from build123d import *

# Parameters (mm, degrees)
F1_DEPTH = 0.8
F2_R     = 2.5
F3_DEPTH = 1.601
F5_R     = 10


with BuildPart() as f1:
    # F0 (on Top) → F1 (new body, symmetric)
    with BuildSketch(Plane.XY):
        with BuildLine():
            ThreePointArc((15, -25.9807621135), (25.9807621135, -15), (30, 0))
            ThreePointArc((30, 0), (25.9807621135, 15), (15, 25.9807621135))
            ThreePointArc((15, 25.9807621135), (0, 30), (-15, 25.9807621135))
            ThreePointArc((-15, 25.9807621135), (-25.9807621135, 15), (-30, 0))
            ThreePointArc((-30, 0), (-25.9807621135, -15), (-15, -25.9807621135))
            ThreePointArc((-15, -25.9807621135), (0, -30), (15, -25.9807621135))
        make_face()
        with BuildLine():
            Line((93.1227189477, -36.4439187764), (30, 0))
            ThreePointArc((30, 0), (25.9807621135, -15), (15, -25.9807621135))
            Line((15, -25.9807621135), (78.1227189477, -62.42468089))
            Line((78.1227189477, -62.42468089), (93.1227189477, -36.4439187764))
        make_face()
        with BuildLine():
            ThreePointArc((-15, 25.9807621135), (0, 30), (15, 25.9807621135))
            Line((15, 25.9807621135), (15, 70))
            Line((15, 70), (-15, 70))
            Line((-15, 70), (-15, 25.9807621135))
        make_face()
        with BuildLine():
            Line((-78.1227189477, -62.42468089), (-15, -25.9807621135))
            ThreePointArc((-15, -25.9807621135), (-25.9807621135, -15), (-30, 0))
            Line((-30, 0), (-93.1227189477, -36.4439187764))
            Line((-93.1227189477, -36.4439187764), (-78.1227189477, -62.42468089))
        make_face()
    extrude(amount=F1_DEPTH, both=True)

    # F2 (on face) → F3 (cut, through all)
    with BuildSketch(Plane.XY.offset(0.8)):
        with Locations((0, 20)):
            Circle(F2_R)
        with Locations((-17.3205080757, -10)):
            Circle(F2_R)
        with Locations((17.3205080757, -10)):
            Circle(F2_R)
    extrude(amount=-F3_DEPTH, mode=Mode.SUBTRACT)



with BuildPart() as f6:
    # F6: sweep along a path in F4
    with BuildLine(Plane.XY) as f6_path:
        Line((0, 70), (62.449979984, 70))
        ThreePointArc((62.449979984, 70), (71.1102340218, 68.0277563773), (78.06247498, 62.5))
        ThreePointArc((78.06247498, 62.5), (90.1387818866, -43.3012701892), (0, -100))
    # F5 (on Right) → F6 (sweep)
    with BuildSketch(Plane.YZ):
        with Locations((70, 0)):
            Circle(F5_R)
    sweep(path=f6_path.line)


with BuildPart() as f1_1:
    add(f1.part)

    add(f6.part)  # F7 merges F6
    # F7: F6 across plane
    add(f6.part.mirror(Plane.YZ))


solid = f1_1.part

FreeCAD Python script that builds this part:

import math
import FreeCAD as App
import Part
import Sketcher
from FreeCAD import Vector
Q = App.Units.Quantity

doc = App.newDocument("Part")
body = doc.addObject("PartDesign::Body", "Body")

sketch1 = body.newObject("Sketcher::SketchObject", "Sketch")
sketch1.AttachmentSupport = (doc.getObject("XY_Plane"), [""])
sketch1.MapMode = "FlatFace"
sketch1.addGeometry(Part.ArcOfCircle(Part.Circle(Vector(0, 0, 0), Vector(0, 0, 1), 30), math.radians(0), math.radians(60)), False)
sketch1.addGeometry(Part.LineSegment(Vector(15, 26, 0), Vector(15, 70, 0)), False)
sketch1.addGeometry(Part.LineSegment(Vector(15, 70, 0), Vector(-15, 70, 0)), False)
sketch1.addGeometry(Part.LineSegment(Vector(-15, 70, 0), Vector(-15, 26, 0)), False)
sketch1.addGeometry(Part.ArcOfCircle(Part.Circle(Vector(0, 0, 0), Vector(0, 0, 1), 30), math.radians(120), math.radians(180)), False)
sketch1.addGeometry(Part.LineSegment(Vector(-30, 0, 0), Vector(-93, -36, 0)), False)
sketch1.addGeometry(Part.LineSegment(Vector(-93, -36, 0), Vector(-78, -62, 0)), False)
sketch1.addGeometry(Part.LineSegment(Vector(-78, -62, 0), Vector(-15, -26, 0)), False)
sketch1.addGeometry(Part.ArcOfCircle(Part.Circle(Vector(0, 0, 0), Vector(0, 0, 1), 30), math.radians(-120), math.radians(-60)), False)
sketch1.addGeometry(Part.LineSegment(Vector(15, -26, 0), Vector(78, -62, 0)), False)
sketch1.addGeometry(Part.LineSegment(Vector(78, -62, 0), Vector(93, -36, 0)), False)
sketch1.addGeometry(Part.LineSegment(Vector(93, -36, 0), Vector(30, 0, 0)), False)
sketch1.addConstraint(Sketcher.Constraint("Coincident", 0, 2, 1, 1))
sketch1.addConstraint(Sketcher.Constraint("Coincident", 1, 2, 2, 1))
sketch1.addConstraint(Sketcher.Constraint("Coincident", 2, 2, 3, 1))
sketch1.addConstraint(Sketcher.Constraint("Coincident", 3, 2, 4, 1))
sketch1.addConstraint(Sketcher.Constraint("Coincident", 4, 2, 5, 1))
sketch1.addConstraint(Sketcher.Constraint("Coincident", 5, 2, 6, 1))
sketch1.addConstraint(Sketcher.Constraint("Coincident", 6, 2, 7, 1))
sketch1.addConstraint(Sketcher.Constraint("Coincident", 7, 2, 8, 1))
sketch1.addConstraint(Sketcher.Constraint("Coincident", 8, 2, 9, 1))
sketch1.addConstraint(Sketcher.Constraint("Coincident", 9, 2, 10, 1))
sketch1.addConstraint(Sketcher.Constraint("Coincident", 10, 2, 11, 1))
sketch1.addConstraint(Sketcher.Constraint("Coincident", 11, 2, 0, 1))
sketch1.addConstraint(Sketcher.Constraint("Vertical", 1))
sketch1.addConstraint(Sketcher.Constraint("Horizontal", 2))
sketch1.addConstraint(Sketcher.Constraint("Vertical", 3))
sketch1.addConstraint(Sketcher.Constraint("Coincident", 0, 3, -1, 1))
sketch1.addConstraint(Sketcher.Constraint("Coincident", 4, 3, -1, 1))
sketch1.addConstraint(Sketcher.Constraint("Coincident", 8, 3, -1, 1))
sketch1.addConstraint(Sketcher.Constraint("Equal", 0, 4))
sketch1.addConstraint(Sketcher.Constraint("Equal", 4, 8))
sketch1.addConstraint(Sketcher.Constraint("Symmetric", 6, 2, 9, 2, -2))
sketch1.addConstraint(Sketcher.Constraint("Symmetric", 5, 2, 10, 2, -2))
sketch1.addConstraint(Sketcher.Constraint("PointOnObject", 4, 2, -1))
sketch1.addConstraint(Sketcher.Constraint("PointOnObject", 11, 2, -1))
sketch1.addConstraint(Sketcher.Constraint("Perpendicular", 5, 6))
sketch1.addConstraint(Sketcher.Constraint("Perpendicular", 6, 7))
sketch1.addConstraint(Sketcher.Constraint("Perpendicular", 9, 10))
sketch1.addConstraint(Sketcher.Constraint("Horizontal", 0, 2, 3, 2))
sketch1.addConstraint(Sketcher.Constraint("Vertical", 3, 2, 7, 2))
sketch1.addConstraint(Sketcher.Constraint("Equal", 5, 7))
sketch1.addConstraint(Sketcher.Constraint("Radius", 0, Q("30 mm")))
sketch1.addConstraint(Sketcher.Constraint("DistanceX", 2, 2, 2, 1, Q("30 mm")))
sketch1.addConstraint(Sketcher.Constraint("DistanceY", -1, 1, 1, 2, Q("70 mm")))
sketch1.addConstraint(Sketcher.Constraint("DistanceX", 5, 2, -1, 1, Q("93.122719 mm")))
pad1 = body.newObject("PartDesign::Pad", "Pad")
pad1.Profile = sketch1
pad1.Length = 1.6
pad1.Midplane = True

sketch2 = body.newObject("Sketcher::SketchObject", "Sketch001")
sketch2.AttachmentSupport = (doc.getObject("XY_Plane"), [""])
sketch2.MapMode = "FlatFace"
sketch2.AttachmentOffset = App.Placement(Vector(0, 0, 0.8), App.Rotation())
sketch2.addGeometry(Part.Circle(Vector(0, 20, 0), Vector(0, 0, 1), 2.5), False)
sketch2.addGeometry(Part.Circle(Vector(-17.3, -10, 0), Vector(0, 0, 1), 2.5), False)
sketch2.addGeometry(Part.Circle(Vector(17.3, -10, 0), Vector(0, 0, 1), 2.5), False)
sketch2.addConstraint(Sketcher.Constraint("Equal", 0, 1))
sketch2.addConstraint(Sketcher.Constraint("Equal", 1, 2))
sketch2.addConstraint(Sketcher.Constraint("Symmetric", 1, 3, 2, 3, -2))
sketch2.addConstraint(Sketcher.Constraint("PointOnObject", 0, 3, -2))
sketch2.addConstraint(Sketcher.Constraint("Diameter", 0, Q("5 mm")))
sketch2.addConstraint(Sketcher.Constraint("DistanceY", -1, 1, 0, 3, Q("20 mm")))
sketch2.addConstraint(Sketcher.Constraint("DistanceY", 1, 3, -1, 1, Q("10 mm")))
sketch2.addConstraint(Sketcher.Constraint("DistanceX", 1, 3, -1, 1, Q("17.320508 mm")))
pocket1 = body.newObject("PartDesign::Pocket", "Pocket")
pocket1.Profile = sketch2
pocket1.Type = "ThroughAll"
body2 = doc.addObject("PartDesign::Body", "Body001")

sketch3 = body2.newObject("Sketcher::SketchObject", "Sketch002")
sketch3.AttachmentSupport = (doc.getObject("YZ_Plane001"), [""])
sketch3.MapMode = "FlatFace"
sketch3.addGeometry(Part.Circle(Vector(70, 0, 0), Vector(0, 0, 1), 10), False)
sketch3.addConstraint(Sketcher.Constraint("PointOnObject", 0, 3, -1))
sketch3.addConstraint(Sketcher.Constraint("Diameter", 0, Q("20 mm")))
sketch3.addConstraint(Sketcher.Constraint("DistanceX", -1, 1, 0, 3, Q("70 mm")))

sketch4 = body2.newObject("Sketcher::SketchObject", "Sketch003")
sketch4.AttachmentSupport = (doc.getObject("XY_Plane001"), [""])
sketch4.MapMode = "FlatFace"
sketch4.addGeometry(Part.LineSegment(Vector(0, 70, 0), Vector(62, 70, 0)), False)
sketch4.addGeometry(Part.ArcOfCircle(Part.Circle(Vector(62, 50, 0), Vector(0, 0, 1), 20), math.radians(39), math.radians(90)), False)
sketch4.addGeometry(Part.ArcOfCircle(Part.Circle(Vector(0, 0, 0), Vector(0, 0, 1), 100), math.radians(-90), math.radians(39)), False)
sketch4.addConstraint(Sketcher.Constraint("Tangent", 0, 2, 1, 2))
sketch4.addConstraint(Sketcher.Constraint("Tangent", 1, 1, 2, 2))
sketch4.addConstraint(Sketcher.Constraint("Horizontal", 0))
sketch4.addConstraint(Sketcher.Constraint("Coincident", 2, 3, -1, 1))
sketch4.addConstraint(Sketcher.Constraint("PointOnObject", 0, 1, -2))
sketch4.addConstraint(Sketcher.Constraint("PointOnObject", 2, 1, -2))
sketch4.addConstraint(Sketcher.Constraint("Radius", 1, Q("20 mm")))
sketch4.addConstraint(Sketcher.Constraint("Radius", 2, Q("100 mm")))
sketch4.addConstraint(Sketcher.Constraint("DistanceY", -1, 1, 1, 3, Q("50 mm")))
doc.recompute()

additivepipe = body2.newObject("PartDesign::AdditivePipe", "AdditivePipe")
additivepipe.Profile = sketch3
additivepipe.Spine = (sketch4, ["Edge1", "Edge2", "Edge3"])
doc.recompute()

body3 = doc.addObject("PartDesign::Body", "Body002")
body3.BaseFeature = body2
boolean = body.newObject("PartDesign::Boolean", "Boolean")
boolean.Type = "Fuse"
boolean.addObjects([body3])
doc.recompute()

mirroring = doc.addObject("Part::Mirroring", "Mirroring")
mirroring.Source = body2
mirroring.Base = Vector(0, 0, 0)
mirroring.Normal = Vector(1, 0, 0)
body4 = doc.addObject("PartDesign::Body", "Body003")
body4.BaseFeature = mirroring
boolean2 = body.newObject("PartDesign::Boolean", "Boolean001")
boolean2.Type = "Fuse"
boolean2.addObjects([body4])
doc.recompute()
mirroring.Visibility = False

doc.recompute()
